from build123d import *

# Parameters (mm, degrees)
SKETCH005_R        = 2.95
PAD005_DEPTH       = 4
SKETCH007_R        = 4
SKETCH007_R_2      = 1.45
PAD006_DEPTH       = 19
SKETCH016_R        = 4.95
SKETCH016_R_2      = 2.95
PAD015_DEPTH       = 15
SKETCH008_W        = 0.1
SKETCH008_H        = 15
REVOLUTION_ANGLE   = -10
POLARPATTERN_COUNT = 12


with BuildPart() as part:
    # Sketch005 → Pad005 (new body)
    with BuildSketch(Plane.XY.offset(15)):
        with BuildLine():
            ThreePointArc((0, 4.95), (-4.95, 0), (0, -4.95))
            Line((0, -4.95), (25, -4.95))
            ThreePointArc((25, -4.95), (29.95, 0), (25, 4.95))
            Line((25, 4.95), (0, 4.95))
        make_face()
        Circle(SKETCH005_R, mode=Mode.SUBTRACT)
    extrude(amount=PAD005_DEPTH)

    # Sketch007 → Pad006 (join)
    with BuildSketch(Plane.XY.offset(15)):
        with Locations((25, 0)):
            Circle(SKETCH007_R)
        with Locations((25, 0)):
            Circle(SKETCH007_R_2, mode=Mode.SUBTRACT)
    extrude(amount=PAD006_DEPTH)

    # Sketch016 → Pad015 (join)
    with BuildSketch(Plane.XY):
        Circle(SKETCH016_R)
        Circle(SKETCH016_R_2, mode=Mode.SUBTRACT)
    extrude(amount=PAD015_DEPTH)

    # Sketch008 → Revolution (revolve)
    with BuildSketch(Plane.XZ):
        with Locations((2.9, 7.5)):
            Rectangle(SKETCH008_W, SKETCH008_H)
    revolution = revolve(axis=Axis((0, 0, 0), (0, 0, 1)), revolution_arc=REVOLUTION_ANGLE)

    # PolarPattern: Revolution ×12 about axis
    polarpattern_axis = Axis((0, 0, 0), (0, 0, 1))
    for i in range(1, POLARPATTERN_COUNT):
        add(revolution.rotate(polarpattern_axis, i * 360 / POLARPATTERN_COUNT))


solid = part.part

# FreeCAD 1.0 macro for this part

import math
import FreeCAD as App
import Part
import Sketcher


def add_polygon(sketch, points):
    """Adds a closed chain of lines whose ends are joined by coincident constraints."""
    first, n = sketch.GeometryCount, len(points)
    for a, b in zip(points, points[1:] + points[:1]):
        sketch.addGeometry(Part.LineSegment(App.Vector(*a, 0), App.Vector(*b, 0)), False)
    for i in range(n):
        sketch.addConstraint(Sketcher.Constraint("Coincident", first + i, 2, first + (i + 1) % n, 1))

doc = App.newDocument("Part")
params = doc.addObject("Spreadsheet::Sheet", "Params")
for row, (alias, value) in enumerate([
    ("sketch1_diameter", "5.9 mm"),
    ("sketch1_width", "25 mm"),
    ("sketch1_radius", "4.95 mm"),
    ("pad1_length", "4 mm"),
    ("sketch2_diameter", "8 mm"),
    ("sketch2_diameter2", "2.9 mm"),
    ("pad2_length", "19 mm"),
    ("sketch3_diameter", "9.9 mm"),
    ("sketch3_diameter2", "5.9 mm"),
    ("pad3_length", "15 mm"),
    ("sketch4_height", "15 mm"),
    ("sketch4_width", "0.1 mm"),
    ("revolution_angle", "10 deg"),
], start=1):
    params.set(f"A{row}", alias)
    params.set(f"B{row}", "=" + value)
    params.setAlias(f"B{row}", alias)

body = doc.addObject("PartDesign::Body", "Body")

# Sketch on XY plane
sketch1 = body.newObject("Sketcher::SketchObject", "Sketch")
sketch1.AttachmentSupport = (doc.getObject("XY_Plane"), [""])
sketch1.MapMode = "FlatFace"
sketch1.AttachmentOffset = App.Placement(App.Vector(0, 0, 15), App.Rotation())
sketch1.addGeometry([
    Part.ArcOfCircle(Part.Circle(App.Vector(0, 0, 0), App.Vector(0, 0, 1), 5), math.radians(90), math.radians(270)),  # 0
    Part.LineSegment(App.Vector(0, -5, 0), App.Vector(25, -5, 0)),  # 1
    Part.ArcOfCircle(Part.Circle(App.Vector(25, 0, 0), App.Vector(0, 0, 1), 5), math.radians(-90), math.radians(90)),  # 2
    Part.LineSegment(App.Vector(25, 5, 0), App.Vector(0, 5, 0)),  # 3
    Part.Circle(App.Vector(0, 0, 0), App.Vector(0, 0, 1), 3),  # 4
], False)
sketch1.addConstraint([
    Sketcher.Constraint("Tangent", 0, 2, 1, 1),
    Sketcher.Constraint("Tangent", 1, 2, 2, 1),
    Sketcher.Constraint("Tangent", 2, 2, 3, 1),
    Sketcher.Constraint("Tangent", 3, 2, 0, 1),
    Sketcher.Constraint("Horizontal", 1),
    Sketcher.Constraint("Horizontal", 3),
    Sketcher.Constraint("Coincident", 0, 3, -1, 1),
    Sketcher.Constraint("Coincident", 4, 3, -1, 1),
    Sketcher.Constraint("Diameter", 4, 5.9),
    Sketcher.Constraint("DistanceX", 1, 1, 1, 2, 25.0),
    Sketcher.Constraint("Radius", 0, 4.95),
])
sketch1.setExpression("Constraints[8]", "Params.sketch1_diameter")
sketch1.setExpression("Constraints[9]", "Params.sketch1_width")
sketch1.setExpression("Constraints[10]", "Params.sketch1_radius")
pad1 = body.newObject("PartDesign::Pad", "Pad")
pad1.Profile = sketch1
pad1.setExpression("Length", "Params.pad1_length")

# Sketch on XY plane
sketch2 = body.newObject("Sketcher::SketchObject", "Sketch001")
sketch2.AttachmentSupport = (doc.getObject("XY_Plane"), [""])
sketch2.MapMode = "FlatFace"
sketch2.AttachmentOffset = App.Placement(App.Vector(0, 0, 15), App.Rotation())
sketch2.addGeometry([
    Part.Circle(App.Vector(25, 0, 0), App.Vector(0, 0, 1), 4),
    Part.Circle(App.Vector(25, 0, 0), App.Vector(0, 0, 1), 1.4),
], False)
sketch2.addConstraint([
    Sketcher.Constraint("Coincident", 1, 3, 0, 3),
    Sketcher.Constraint("PointOnObject", 0, 3, -1),
    Sketcher.Constraint("Diameter", 0, 8.0),
    Sketcher.Constraint("Diameter", 1, 2.9),
    Sketcher.Constraint("DistanceX", -1, 1, 0, 3, 25.0),
])
sketch2.setExpression("Constraints[2]", "Params.sketch2_diameter")
sketch2.setExpression("Constraints[3]", "Params.sketch2_diameter2")
pad2 = body.newObject("PartDesign::Pad", "Pad001")
pad2.Profile = sketch2
pad2.setExpression("Length", "Params.pad2_length")

# Sketch on XY plane
sketch3 = body.newObject("Sketcher::SketchObject", "Sketch002")
sketch3.AttachmentSupport = (doc.getObject("XY_Plane"), [""])
sketch3.MapMode = "FlatFace"
sketch3.addGeometry([
    Part.Circle(App.Vector(0, 0, 0), App.Vector(0, 0, 1), 5),
    Part.Circle(App.Vector(0, 0, 0), App.Vector(0, 0, 1), 3),
], False)
sketch3.addConstraint([
    Sketcher.Constraint("Coincident", 0, 3, -1, 1),
    Sketcher.Constraint("Coincident", 1, 3, -1, 1),
    Sketcher.Constraint("Diameter", 0, 9.9),
    Sketcher.Constraint("Diameter", 1, 5.9),
])
sketch3.setExpression("Constraints[2]", "Params.sketch3_diameter")
sketch3.setExpression("Constraints[3]", "Params.sketch3_diameter2")
pad3 = body.newObject("PartDesign::Pad", "Pad002")
pad3.Profile = sketch3
pad3.setExpression("Length", "Params.pad3_length")

# Sketch on XZ plane
sketch4 = body.newObject("Sketcher::SketchObject", "Sketch003")
sketch4.AttachmentSupport = (doc.getObject("XZ_Plane"), [""])
sketch4.MapMode = "FlatFace"
add_polygon(sketch4, [(2.85, 15), (2.85, 0), (2.95, 0), (2.95, 15)])  # lines 0-3
sketch4.addConstraint([
    Sketcher.Constraint("Vertical", 0),
    Sketcher.Constraint("Horizontal", 1),
    Sketcher.Constraint("Vertical", 2),
    Sketcher.Constraint("Horizontal", 3),
    Sketcher.Constraint("PointOnObject", 0, 2, -1),
    Sketcher.Constraint("DistanceY", 0, 2, 0, 1, 15.0),
    Sketcher.Constraint("DistanceX", 1, 1, 1, 2, 0.1),
    Sketcher.Constraint("DistanceX", -1, 1, 0, 2, 2.85),
])
sketch4.setExpression("Constraints[9]", "Params.sketch4_height")
sketch4.setExpression("Constraints[10]", "Params.sketch4_width")
revolution = body.newObject("PartDesign::Revolution", "Revolution")
revolution.Profile = sketch4
revolution.ReferenceAxis = (sketch4, ["V_Axis"])
revolution.setExpression("Angle", "Params.revolution_angle")
revolution.Reversed = True
doc.recompute()

polarpattern = body.newObject("PartDesign::PolarPattern", "PolarPattern")
polarpattern.Originals = [revolution]
polarpattern.Axis = (doc.getObject("Z_Axis"), [""])
polarpattern.Angle = 360
polarpattern.Occurrences = 12
body.Tip = polarpattern

doc.recompute()
